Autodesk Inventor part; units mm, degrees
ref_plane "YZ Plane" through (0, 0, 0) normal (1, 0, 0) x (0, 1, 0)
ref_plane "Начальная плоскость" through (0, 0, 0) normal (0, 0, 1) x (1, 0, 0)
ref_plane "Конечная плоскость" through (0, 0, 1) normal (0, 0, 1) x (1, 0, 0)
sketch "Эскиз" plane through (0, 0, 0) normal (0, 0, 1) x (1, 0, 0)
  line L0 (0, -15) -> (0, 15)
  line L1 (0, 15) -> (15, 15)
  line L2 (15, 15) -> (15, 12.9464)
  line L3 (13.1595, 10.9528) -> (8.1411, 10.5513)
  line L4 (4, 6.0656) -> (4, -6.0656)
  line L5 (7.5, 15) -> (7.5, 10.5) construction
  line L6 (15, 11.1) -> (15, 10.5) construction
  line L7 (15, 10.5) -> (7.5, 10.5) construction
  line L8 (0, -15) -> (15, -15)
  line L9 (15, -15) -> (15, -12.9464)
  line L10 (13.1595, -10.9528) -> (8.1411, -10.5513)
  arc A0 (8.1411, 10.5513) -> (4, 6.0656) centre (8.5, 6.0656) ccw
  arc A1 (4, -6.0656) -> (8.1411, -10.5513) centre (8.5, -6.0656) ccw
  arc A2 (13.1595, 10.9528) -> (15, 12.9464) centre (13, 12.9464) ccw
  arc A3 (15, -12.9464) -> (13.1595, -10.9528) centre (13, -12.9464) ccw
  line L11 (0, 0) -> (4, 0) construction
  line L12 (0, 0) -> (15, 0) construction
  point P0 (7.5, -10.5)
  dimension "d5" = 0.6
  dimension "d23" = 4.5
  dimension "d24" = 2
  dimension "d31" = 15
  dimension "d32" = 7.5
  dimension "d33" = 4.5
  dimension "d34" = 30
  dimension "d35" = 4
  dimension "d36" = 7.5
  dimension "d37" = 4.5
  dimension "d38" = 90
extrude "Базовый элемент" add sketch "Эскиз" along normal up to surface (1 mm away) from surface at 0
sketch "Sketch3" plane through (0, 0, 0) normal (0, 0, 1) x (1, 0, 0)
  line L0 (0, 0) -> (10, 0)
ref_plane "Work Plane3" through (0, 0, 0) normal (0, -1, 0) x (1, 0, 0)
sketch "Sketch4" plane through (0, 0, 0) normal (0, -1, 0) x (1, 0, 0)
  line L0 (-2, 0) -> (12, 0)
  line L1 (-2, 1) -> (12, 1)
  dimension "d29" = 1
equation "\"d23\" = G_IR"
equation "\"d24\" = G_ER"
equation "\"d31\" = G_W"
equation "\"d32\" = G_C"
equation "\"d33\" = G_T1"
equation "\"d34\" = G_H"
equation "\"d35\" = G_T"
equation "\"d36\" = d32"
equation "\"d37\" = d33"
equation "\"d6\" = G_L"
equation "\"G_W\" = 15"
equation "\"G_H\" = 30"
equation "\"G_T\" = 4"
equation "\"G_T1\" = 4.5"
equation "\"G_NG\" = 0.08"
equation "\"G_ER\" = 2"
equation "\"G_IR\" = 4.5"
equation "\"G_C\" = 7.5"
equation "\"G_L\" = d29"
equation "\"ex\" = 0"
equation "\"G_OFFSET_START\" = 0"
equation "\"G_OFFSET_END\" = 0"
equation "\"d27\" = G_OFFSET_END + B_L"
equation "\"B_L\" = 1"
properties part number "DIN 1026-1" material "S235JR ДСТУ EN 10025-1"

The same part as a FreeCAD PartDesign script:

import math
import FreeCAD as App
import Part
import Sketcher

V = App.Vector
Q = App.Units.Quantity

doc = App.newDocument("Part")
body = doc.addObject("PartDesign::Body", "Body")

# Sketch on XY plane
sketch1 = body.newObject("Sketcher::SketchObject", "Sketch")
sketch1.AttachmentSupport = (doc.getObject("XY_Plane"), [""])
sketch1.MapMode = "FlatFace"
sketch1.addGeometry([
    Part.LineSegment(V(0, 15, 0), V(0, -15, 0)),  # 0
    Part.LineSegment(V(0, -15, 0), V(15, -15, 0)),  # 1
    Part.LineSegment(V(15, -15, 0), V(15, -12.9464, 0)),  # 2
    Part.ArcOfCircle(Part.Circle(V(13, -12.9464, 0), V(0, 0, 1), 2), math.radians(0), math.radians(85.425736)),  # 3
    Part.LineSegment(V(13.1595, -10.9528, 0), V(8.1411, -10.5513, 0)),  # 4
    Part.ArcOfCircle(Part.Circle(V(8.5, -6.0656, 0), V(0, 0, 1), 4.5), math.radians(180), math.radians(265.42552)),  # 5
    Part.LineSegment(V(4, -6.0656, 0), V(4, 6.0656, 0)),  # 6
    Part.ArcOfCircle(Part.Circle(V(8.5, 6.0656, 0), V(0, 0, 1), 4.500035), math.radians(94.57448), math.radians(180)),  # 7
    Part.LineSegment(V(8.1411, 10.5513, 0), V(13.1595, 10.9528, 0)),  # 8
    Part.ArcOfCircle(Part.Circle(V(13, 12.9464, 0), V(0, 0, 1), 1.99997), math.radians(-85.425736), math.radians(0)),  # 9
    Part.LineSegment(V(15, 12.9464, 0), V(15, 15, 0)),  # 10
    Part.LineSegment(V(15, 15, 0), V(0, 15, 0)),  # 11
], False)
sketch1.addConstraint([
    Sketcher.Constraint("Coincident", 0, 2, 1, 1),
    Sketcher.Constraint("Coincident", 1, 2, 2, 1),
    Sketcher.Constraint("Tangent", 2, 2, 3, 1),
    Sketcher.Constraint("Tangent", 3, 2, 4, 1),
    Sketcher.Constraint("Tangent", 4, 2, 5, 2),
    Sketcher.Constraint("Tangent", 5, 1, 6, 1),
    Sketcher.Constraint("Tangent", 6, 2, 7, 2),
    Sketcher.Constraint("Tangent", 7, 1, 8, 1),
    Sketcher.Constraint("Tangent", 8, 2, 9, 1),
    Sketcher.Constraint("Tangent", 9, 2, 10, 1),
    Sketcher.Constraint("Coincident", 10, 2, 11, 1),
    Sketcher.Constraint("Coincident", 11, 2, 0, 1),
    Sketcher.Constraint("Vertical", 0),
    Sketcher.Constraint("Horizontal", 1),
    Sketcher.Constraint("Vertical", 2),
    Sketcher.Constraint("Vertical", 6),
    Sketcher.Constraint("Vertical", 10),
    Sketcher.Constraint("Horizontal", 11),
    Sketcher.Constraint("Equal", 5, 7),
    Sketcher.Constraint("Equal", 3, 9),
    Sketcher.Constraint("Symmetric", 0, 2, 11, 2, -1, 1),
    Sketcher.Constraint("Symmetric", 3, 3, 9, 3, -1),
    Sketcher.Constraint("Vertical", 4, 2, 7, 1),
    Sketcher.Constraint("Radius", 3, Q("2 mm")),
    Sketcher.Constraint("Radius", 5, Q("4.5 mm")),
    Sketcher.Constraint("DistanceX", 1, 1, 1, 2, Q("15 mm")),
    Sketcher.Constraint("DistanceY", 0, 2, 0, 1, Q("30 mm")),
    Sketcher.Constraint("DistanceX", -1, 1, 5, 1, Q("4 mm")),
    Sketcher.Constraint("DistanceY", 2, 1, 2, 2, Q("2.0536 mm")),
    Sketcher.Constraint("DistanceY", 6, 1, 6, 2, Q("12.1312 mm")),
])
pad1 = body.newObject("PartDesign::Pad", "Pad")
pad1.Profile = sketch1
pad1.Length = 1

doc.recompute()
